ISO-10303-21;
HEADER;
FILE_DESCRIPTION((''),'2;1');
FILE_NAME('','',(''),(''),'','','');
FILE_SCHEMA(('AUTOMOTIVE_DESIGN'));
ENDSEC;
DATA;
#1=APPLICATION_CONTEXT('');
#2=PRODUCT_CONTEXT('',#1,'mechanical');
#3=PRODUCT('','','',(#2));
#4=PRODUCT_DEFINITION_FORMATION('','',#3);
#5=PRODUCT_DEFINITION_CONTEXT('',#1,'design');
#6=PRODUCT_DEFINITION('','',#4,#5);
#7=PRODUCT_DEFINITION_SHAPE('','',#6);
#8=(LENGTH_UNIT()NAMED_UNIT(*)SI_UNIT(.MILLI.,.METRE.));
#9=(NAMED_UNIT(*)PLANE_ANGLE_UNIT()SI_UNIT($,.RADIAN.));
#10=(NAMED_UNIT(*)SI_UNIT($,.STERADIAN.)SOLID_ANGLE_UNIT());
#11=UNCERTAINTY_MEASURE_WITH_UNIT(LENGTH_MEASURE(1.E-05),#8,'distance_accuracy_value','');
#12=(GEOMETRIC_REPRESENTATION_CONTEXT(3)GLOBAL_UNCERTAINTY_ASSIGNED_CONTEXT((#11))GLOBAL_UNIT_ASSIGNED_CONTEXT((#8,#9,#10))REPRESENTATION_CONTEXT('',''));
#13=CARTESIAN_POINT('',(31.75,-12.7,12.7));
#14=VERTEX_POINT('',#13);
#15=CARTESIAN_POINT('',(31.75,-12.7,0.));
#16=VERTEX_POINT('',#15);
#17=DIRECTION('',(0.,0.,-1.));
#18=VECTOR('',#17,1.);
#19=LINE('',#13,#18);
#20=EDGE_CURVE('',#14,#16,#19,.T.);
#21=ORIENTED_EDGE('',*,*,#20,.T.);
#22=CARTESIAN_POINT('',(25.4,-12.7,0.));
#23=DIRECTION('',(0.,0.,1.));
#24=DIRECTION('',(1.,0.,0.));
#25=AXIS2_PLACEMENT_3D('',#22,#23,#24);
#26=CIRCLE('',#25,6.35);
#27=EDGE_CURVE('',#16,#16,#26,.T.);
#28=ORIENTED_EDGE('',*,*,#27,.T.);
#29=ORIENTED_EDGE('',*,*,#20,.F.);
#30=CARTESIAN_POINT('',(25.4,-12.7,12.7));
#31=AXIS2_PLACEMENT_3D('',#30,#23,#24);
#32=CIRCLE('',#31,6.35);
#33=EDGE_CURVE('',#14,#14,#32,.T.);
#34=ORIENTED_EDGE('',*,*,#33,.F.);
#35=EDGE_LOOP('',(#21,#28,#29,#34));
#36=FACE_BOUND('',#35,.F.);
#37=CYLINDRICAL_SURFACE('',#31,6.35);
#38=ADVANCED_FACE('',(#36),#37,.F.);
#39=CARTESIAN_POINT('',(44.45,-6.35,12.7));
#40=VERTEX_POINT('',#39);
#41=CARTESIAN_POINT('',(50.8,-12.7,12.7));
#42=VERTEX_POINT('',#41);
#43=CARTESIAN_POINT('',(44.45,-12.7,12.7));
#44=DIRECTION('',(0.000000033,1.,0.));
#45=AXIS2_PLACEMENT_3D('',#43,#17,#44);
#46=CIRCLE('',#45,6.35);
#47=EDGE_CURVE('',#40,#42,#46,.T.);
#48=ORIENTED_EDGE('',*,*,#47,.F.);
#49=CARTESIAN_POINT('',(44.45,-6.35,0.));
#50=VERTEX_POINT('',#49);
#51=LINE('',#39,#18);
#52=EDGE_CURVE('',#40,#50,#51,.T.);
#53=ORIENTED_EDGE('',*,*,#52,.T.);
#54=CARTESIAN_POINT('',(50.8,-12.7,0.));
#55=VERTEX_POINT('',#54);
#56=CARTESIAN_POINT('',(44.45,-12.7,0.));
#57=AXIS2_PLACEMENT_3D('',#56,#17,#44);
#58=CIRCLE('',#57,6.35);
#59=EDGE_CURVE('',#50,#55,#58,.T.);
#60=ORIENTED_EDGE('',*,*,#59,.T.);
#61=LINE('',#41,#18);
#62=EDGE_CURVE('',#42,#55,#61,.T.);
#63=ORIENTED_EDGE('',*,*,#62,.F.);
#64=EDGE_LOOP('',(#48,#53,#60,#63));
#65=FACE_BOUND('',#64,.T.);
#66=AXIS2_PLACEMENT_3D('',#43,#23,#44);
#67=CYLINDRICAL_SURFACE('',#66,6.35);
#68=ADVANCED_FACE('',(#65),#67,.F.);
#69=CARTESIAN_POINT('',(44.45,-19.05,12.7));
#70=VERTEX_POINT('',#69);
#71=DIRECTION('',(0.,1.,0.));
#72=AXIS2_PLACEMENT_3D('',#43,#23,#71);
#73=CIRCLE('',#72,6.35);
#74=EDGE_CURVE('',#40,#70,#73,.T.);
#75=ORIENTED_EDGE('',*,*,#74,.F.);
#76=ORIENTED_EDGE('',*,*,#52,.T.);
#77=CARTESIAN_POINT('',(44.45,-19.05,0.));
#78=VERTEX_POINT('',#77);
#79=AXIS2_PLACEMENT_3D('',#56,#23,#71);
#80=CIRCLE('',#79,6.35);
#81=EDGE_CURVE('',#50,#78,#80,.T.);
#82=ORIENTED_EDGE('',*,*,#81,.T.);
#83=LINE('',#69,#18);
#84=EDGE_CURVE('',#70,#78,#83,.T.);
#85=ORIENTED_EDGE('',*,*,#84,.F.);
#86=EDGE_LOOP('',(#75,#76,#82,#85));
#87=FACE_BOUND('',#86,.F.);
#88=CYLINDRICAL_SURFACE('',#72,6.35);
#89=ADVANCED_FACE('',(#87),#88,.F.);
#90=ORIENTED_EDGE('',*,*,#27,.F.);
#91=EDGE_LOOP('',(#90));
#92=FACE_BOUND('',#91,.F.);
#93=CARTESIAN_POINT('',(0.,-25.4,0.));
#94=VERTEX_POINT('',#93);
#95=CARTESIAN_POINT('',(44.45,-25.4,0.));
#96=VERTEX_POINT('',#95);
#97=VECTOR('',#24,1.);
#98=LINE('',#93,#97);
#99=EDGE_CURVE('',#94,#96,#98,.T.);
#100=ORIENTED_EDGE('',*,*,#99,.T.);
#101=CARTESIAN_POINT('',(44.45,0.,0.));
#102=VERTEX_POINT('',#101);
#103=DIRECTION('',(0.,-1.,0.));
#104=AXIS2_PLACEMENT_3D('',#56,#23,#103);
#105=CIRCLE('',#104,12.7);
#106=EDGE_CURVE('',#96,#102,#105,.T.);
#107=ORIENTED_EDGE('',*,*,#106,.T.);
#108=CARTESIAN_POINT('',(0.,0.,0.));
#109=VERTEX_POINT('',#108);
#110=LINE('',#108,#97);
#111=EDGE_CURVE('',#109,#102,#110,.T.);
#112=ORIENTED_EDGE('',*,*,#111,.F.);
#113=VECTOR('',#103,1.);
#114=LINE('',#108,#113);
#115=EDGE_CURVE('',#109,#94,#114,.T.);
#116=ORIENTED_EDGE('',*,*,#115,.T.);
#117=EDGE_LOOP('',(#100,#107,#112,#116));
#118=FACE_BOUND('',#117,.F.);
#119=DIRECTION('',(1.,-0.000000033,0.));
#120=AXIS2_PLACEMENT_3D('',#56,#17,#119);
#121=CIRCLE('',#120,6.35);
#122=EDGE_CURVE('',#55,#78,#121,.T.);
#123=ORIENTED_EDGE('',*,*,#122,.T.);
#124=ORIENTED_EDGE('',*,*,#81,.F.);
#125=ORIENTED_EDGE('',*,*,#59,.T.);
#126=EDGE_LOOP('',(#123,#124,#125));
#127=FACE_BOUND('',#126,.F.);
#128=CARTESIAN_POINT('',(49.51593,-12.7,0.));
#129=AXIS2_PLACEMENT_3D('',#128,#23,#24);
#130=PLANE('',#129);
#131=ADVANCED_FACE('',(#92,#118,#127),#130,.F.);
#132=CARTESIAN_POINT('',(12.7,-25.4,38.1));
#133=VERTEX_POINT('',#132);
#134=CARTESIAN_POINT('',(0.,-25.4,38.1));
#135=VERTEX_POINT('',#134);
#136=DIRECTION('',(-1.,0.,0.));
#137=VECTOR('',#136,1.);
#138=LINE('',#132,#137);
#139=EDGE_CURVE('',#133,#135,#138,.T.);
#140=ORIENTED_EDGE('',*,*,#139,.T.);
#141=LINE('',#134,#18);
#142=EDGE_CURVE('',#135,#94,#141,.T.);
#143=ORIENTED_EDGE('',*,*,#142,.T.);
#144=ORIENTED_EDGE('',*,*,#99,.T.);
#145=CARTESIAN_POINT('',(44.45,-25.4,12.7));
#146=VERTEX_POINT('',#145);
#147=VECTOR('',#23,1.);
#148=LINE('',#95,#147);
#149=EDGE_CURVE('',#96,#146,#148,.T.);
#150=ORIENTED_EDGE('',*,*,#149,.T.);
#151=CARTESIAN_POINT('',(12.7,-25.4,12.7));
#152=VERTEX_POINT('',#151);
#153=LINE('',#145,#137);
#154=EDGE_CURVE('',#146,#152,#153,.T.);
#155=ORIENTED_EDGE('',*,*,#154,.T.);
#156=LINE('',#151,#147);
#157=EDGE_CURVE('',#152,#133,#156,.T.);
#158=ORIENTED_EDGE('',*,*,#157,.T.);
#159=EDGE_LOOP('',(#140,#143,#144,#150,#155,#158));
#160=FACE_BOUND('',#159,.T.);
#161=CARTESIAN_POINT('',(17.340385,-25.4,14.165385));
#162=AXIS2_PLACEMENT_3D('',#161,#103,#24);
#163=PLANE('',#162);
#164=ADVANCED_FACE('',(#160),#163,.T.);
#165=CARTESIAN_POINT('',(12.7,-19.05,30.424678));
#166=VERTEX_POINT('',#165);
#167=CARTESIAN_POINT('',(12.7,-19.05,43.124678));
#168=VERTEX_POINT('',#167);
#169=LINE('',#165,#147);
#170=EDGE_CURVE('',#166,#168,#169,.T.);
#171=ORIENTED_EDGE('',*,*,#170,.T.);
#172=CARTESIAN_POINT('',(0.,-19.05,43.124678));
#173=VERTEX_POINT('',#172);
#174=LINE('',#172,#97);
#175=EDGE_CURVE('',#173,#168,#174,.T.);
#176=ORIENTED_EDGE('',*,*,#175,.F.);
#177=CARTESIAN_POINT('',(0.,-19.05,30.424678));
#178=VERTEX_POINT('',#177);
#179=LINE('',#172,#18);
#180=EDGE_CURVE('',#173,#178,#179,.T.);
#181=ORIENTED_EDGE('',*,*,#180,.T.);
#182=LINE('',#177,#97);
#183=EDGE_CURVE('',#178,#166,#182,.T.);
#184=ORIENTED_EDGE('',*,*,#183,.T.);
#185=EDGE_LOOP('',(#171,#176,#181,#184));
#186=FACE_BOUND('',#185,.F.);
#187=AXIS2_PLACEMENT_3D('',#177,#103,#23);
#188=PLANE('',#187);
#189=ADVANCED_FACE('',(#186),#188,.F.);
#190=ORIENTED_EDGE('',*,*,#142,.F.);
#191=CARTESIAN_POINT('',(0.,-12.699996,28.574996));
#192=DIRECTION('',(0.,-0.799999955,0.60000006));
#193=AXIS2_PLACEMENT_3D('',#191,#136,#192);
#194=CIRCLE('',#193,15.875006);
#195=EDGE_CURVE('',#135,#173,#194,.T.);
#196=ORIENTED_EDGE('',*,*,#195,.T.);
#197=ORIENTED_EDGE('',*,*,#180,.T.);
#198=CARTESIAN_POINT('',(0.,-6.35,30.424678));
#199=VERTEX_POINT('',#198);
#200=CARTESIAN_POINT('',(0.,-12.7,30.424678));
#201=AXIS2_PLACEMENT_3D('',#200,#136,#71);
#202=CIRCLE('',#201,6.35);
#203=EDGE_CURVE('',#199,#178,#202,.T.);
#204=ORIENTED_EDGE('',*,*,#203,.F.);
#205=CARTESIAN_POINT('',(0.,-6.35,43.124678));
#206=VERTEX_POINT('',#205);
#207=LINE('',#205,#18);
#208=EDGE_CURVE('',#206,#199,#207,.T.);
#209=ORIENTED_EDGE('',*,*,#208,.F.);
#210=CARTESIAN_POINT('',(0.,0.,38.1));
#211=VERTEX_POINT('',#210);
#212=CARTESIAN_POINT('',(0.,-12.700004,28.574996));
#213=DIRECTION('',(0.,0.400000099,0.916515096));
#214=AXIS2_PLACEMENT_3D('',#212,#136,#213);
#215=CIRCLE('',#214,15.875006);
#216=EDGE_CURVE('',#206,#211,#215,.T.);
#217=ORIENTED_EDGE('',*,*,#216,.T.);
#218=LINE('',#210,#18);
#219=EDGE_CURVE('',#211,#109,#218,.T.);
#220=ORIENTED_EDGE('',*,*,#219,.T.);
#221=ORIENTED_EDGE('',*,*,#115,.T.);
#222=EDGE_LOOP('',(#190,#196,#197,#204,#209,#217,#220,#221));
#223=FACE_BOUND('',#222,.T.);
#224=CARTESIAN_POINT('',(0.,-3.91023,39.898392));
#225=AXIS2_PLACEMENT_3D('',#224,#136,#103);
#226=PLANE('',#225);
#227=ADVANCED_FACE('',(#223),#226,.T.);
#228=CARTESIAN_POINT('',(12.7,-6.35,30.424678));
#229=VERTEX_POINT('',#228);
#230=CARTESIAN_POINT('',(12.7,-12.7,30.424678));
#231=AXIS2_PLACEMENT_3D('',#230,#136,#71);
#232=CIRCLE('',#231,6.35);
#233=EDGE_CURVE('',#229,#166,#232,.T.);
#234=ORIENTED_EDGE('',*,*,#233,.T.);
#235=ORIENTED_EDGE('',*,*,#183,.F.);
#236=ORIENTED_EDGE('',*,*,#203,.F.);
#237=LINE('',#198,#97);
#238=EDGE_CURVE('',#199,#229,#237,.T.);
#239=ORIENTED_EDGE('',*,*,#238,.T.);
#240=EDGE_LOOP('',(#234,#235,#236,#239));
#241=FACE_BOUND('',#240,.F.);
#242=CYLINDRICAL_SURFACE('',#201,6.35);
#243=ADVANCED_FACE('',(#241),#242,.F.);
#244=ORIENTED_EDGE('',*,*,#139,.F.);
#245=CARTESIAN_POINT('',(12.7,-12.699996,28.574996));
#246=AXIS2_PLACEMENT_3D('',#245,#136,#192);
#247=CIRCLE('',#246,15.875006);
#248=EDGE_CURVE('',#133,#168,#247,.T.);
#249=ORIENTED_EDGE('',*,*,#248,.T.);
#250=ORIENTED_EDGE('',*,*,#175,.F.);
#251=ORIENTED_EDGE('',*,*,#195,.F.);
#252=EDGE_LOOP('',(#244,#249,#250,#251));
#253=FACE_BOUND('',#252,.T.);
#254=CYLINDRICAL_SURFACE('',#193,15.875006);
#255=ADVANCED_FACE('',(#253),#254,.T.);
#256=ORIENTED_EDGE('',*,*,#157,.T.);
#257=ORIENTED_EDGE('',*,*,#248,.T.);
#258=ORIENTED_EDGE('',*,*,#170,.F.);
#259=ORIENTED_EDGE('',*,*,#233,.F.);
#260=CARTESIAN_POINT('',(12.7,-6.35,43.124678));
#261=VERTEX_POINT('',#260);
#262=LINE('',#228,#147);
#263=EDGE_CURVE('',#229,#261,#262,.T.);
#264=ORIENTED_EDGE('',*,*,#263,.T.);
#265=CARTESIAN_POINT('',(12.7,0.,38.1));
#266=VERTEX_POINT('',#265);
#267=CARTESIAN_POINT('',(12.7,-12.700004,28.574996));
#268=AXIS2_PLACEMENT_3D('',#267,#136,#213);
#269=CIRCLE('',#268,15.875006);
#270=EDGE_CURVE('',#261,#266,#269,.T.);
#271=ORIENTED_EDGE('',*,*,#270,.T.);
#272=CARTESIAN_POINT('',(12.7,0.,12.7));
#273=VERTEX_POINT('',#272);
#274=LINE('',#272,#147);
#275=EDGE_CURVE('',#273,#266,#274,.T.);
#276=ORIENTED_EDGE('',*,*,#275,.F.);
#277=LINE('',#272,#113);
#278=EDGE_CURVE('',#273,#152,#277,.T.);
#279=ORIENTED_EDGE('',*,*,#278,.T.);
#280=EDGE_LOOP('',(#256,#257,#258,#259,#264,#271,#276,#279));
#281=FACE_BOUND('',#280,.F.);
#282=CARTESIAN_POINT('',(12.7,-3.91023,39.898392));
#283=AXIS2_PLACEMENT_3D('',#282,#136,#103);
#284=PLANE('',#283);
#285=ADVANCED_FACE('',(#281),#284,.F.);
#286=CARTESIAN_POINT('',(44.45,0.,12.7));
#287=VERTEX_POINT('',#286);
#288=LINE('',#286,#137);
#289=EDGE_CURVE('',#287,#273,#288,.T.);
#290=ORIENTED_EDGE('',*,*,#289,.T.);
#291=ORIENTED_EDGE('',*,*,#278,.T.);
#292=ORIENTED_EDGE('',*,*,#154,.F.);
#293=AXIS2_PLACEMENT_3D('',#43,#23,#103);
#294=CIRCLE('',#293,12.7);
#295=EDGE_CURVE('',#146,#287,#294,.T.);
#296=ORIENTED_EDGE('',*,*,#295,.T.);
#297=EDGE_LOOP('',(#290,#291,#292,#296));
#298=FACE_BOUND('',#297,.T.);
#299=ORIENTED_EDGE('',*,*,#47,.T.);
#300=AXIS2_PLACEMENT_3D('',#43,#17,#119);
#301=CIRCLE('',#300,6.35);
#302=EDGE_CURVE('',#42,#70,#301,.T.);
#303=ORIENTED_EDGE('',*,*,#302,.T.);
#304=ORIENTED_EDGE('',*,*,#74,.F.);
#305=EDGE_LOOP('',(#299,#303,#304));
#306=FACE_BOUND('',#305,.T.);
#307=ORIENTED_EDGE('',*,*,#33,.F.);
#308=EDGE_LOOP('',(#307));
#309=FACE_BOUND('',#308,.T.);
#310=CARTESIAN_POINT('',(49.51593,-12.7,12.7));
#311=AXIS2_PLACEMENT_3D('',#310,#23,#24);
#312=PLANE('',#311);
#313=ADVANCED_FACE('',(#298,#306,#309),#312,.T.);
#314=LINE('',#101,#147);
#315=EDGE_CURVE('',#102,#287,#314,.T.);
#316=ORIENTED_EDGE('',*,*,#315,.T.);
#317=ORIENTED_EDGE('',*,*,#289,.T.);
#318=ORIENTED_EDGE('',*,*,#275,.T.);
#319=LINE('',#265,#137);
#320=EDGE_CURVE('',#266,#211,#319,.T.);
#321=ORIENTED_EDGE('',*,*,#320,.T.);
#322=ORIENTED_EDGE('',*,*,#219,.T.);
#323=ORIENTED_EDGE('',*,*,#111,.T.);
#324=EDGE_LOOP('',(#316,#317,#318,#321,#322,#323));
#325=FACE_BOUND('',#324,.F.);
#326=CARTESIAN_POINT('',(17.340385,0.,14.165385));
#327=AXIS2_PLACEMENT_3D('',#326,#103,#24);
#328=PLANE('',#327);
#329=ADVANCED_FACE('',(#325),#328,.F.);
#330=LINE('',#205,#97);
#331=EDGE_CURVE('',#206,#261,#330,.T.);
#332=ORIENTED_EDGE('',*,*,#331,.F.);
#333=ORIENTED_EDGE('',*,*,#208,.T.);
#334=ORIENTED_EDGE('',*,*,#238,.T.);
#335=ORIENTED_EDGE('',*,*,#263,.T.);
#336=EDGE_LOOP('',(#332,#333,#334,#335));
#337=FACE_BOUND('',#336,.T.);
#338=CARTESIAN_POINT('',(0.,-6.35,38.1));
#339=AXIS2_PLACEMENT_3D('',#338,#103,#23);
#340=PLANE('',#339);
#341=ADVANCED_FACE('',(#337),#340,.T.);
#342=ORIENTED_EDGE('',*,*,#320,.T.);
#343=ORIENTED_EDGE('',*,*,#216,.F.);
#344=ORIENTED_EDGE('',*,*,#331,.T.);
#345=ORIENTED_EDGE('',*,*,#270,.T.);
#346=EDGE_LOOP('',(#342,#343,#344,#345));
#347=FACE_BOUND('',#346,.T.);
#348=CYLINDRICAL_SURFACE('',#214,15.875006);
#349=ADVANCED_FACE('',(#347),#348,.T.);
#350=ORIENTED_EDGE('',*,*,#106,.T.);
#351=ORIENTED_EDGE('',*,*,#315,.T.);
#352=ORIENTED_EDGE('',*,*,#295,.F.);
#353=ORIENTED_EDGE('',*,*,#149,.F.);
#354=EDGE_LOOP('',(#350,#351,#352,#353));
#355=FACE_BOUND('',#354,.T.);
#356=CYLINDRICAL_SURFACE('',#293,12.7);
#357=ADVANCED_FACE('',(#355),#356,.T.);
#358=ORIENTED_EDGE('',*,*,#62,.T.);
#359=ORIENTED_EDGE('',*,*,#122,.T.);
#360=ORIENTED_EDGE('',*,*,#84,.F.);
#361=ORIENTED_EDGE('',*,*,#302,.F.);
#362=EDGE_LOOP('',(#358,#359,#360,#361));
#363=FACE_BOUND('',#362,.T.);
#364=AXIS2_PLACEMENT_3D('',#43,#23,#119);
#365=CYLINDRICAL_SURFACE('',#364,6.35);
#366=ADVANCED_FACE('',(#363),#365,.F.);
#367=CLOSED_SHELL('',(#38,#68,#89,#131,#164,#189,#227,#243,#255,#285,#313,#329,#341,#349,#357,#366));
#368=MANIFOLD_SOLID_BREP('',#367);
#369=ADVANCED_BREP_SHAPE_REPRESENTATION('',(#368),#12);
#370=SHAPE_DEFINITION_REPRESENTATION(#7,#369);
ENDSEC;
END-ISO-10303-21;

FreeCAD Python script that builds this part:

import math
import FreeCAD as App
import Part
import Sketcher

V = App.Vector
Q = App.Units.Quantity


def add_polygon(sketch, points):
    """Adds a closed chain of lines whose ends are joined by coincident constraints."""
    first, n = sketch.GeometryCount, len(points)
    for a, b in zip(points, points[1:] + points[:1]):
        sketch.addGeometry(Part.LineSegment(App.Vector(*a, 0), App.Vector(*b, 0)), False)
    for i in range(n):
        sketch.addConstraint(Sketcher.Constraint("Coincident", first + i, 2, first + (i + 1) % n, 1))

doc = App.newDocument("Part")
body = doc.addObject("PartDesign::Body", "Body")

# Sketch on XZ plane
sketch1 = body.newObject("Sketcher::SketchObject", "Sketch")
sketch1.AttachmentSupport = (doc.getObject("XZ_Plane"), [""])
sketch1.MapMode = "FlatFace"
add_polygon(sketch1, [(0, 38), (0, 0), (44, 0), (44, 13), (13, 13), (13, 38)])  # lines 0-5
sketch1.addConstraint([
    Sketcher.Constraint("Vertical", 0),
    Sketcher.Constraint("Horizontal", 1),
    Sketcher.Constraint("Vertical", 2),
    Sketcher.Constraint("Horizontal", 3),
    Sketcher.Constraint("Vertical", 4),
    Sketcher.Constraint("Horizontal", 5),
    Sketcher.Constraint("Coincident", 0, 2, -1, 1),
    Sketcher.Constraint("Equal", 5, 2),
    Sketcher.Constraint("DistanceY", 4, 1, 4, 2, Q("1 in")),
    Sketcher.Constraint("DistanceX", 5, 2, 5, 1, Q("0.5 in")),
    Sketcher.Constraint("DistanceX", 1, 1, 1, 2, Q("1.75 in")),
])
pad1 = body.newObject("PartDesign::Pad", "Pad")
pad1.Profile = sketch1
pad1.Length = Q("1 in")

# Sketch on YZ plane
sketch2 = body.newObject("Sketcher::SketchObject", "Sketch001")
sketch2.AttachmentSupport = (doc.getObject("YZ_Plane"), [""])
sketch2.MapMode = "FlatFace"
sketch2.addGeometry([
    Part.LineSegment(V(-6, 38, 0), V(-6, 43, 0)),  # 0
    Part.ArcOfCircle(Part.Circle(V(-13, 29, 0), V(0, 0, 1), 16), math.radians(37), math.radians(66)),  # 1
    Part.LineSegment(V(0, 38, 0), V(-6, 38, 0)),  # 2
    Part.LineSegment(V(-6, 38, 0), V(-6, 30, 0)),  # 3
    Part.ArcOfCircle(Part.Circle(V(-13, 30, 0), V(0, 0, 1), 6), math.radians(180), math.radians(360)),  # 4
    Part.LineSegment(V(-19, 30, 0), V(-19, 38, 0)),  # 5
    Part.LineSegment(V(-19, 38, 0), V(-6, 38, 0)),  # 6
], False)
sketch2.addConstraint([
    Sketcher.Constraint("Coincident", 0, 2, 1, 2),
    Sketcher.Constraint("Coincident", 1, 1, 2, 1),
    Sketcher.Constraint("Coincident", 2, 2, 0, 1),
    Sketcher.Constraint("Tangent", 3, 2, 4, 2),
    Sketcher.Constraint("Tangent", 4, 1, 5, 1),
    Sketcher.Constraint("Coincident", 5, 2, 6, 1),
    Sketcher.Constraint("Coincident", 6, 2, 3, 1),
    Sketcher.Constraint("Vertical", 0),
    Sketcher.Constraint("Horizontal", 2),
    Sketcher.Constraint("Vertical", 3),
    Sketcher.Constraint("Vertical", 5),
    Sketcher.Constraint("Horizontal", 6),
    Sketcher.Constraint("Coincident", 6, 2, 2, 2),
    Sketcher.Constraint("PointOnObject", 1, 1, -2),
    Sketcher.Constraint("Radius", 4, Q("0.25 in")),
    Sketcher.Constraint("DistanceX", 2, 2, 2, 1, Q("0.25 in")),
    Sketcher.Constraint("DistanceX", 1, 3, -1, 1, Q("0.5000002 in")),
    Sketcher.Constraint("DistanceY", -1, 1, 1, 1, Q("1.5 in")),
    Sketcher.Constraint("DistanceY", 4, 3, 0, 2, Q("0.5 in")),
    Sketcher.Constraint("DistanceY", -1, 1, 1, 3, Q("1.1249998 in")),
])
pocket1 = body.newObject("PartDesign::Pocket", "Pocket")
pocket1.Profile = sketch2
pocket1.Length = Q("0.5 in")
pocket1.Reversed = True

# Sketch on YZ plane
sketch3 = body.newObject("Sketcher::SketchObject", "Sketch002")
sketch3.AttachmentSupport = (doc.getObject("YZ_Plane"), [""])
sketch3.MapMode = "FlatFace"
sketch3.addGeometry([
    Part.LineSegment(V(-6, 38, 0), V(-6, 43, 0)),  # 0
    Part.ArcOfCircle(Part.Circle(V(-13, 29, 0), V(0, 0, 1), 16), math.radians(37), math.radians(66)),  # 1
    Part.LineSegment(V(0, 38, 0), V(-6, 38, 0)),  # 2
    Part.LineSegment(V(-19, 38, 0), V(-25, 38, 0)),  # 3
    Part.ArcOfCircle(Part.Circle(V(-13, 29, 0), V(0, 0, 1), 16), math.radians(114), math.radians(143)),  # 4
    Part.LineSegment(V(-19, 43, 0), V(-19, 38, 0)),  # 5
], False)
sketch3.addConstraint([
    Sketcher.Constraint("Coincident", 0, 2, 1, 2),
    Sketcher.Constraint("Coincident", 1, 1, 2, 1),
    Sketcher.Constraint("Coincident", 2, 2, 0, 1),
    Sketcher.Constraint("Coincident", 3, 2, 4, 2),
    Sketcher.Constraint("Coincident", 4, 1, 5, 1),
    Sketcher.Constraint("Coincident", 5, 2, 3, 1),
    Sketcher.Constraint("Vertical", 0),
    Sketcher.Constraint("Horizontal", 2),
    Sketcher.Constraint("Horizontal", 3),
    Sketcher.Constraint("Vertical", 5),
    Sketcher.Constraint("Coincident", 4, 3, 1, 3),
    Sketcher.Constraint("Equal", 1, 4),
    Sketcher.Constraint("PointOnObject", 1, 1, -2),
    Sketcher.Constraint("Horizontal", 2, 2, 3, 2),
    Sketcher.Constraint("Horizontal", 0, 2, 4, 1),
    Sketcher.Constraint("DistanceX", 3, 2, -1, 1, Q("1 in")),
    Sketcher.Constraint("DistanceX", 2, 2, 2, 1, Q("0.25 in")),
    Sketcher.Constraint("DistanceY", -1, 1, 1, 1, Q("1.5 in")),
    Sketcher.Constraint("DistanceY", -1, 1, 1, 3, Q("1.1249998 in")),
])
pad2 = body.newObject("PartDesign::Pad", "Pad001")
pad2.Profile = sketch3
pad2.Length = Q("0.5 in")

# Sketch on XY plane
sketch4 = body.newObject("Sketcher::SketchObject", "Sketch003")
sketch4.AttachmentSupport = (doc.getObject("XY_Plane"), [""])
sketch4.MapMode = "FlatFace"
sketch4.AttachmentOffset = App.Placement(V(0, 0, 0.5 * 25.4), App.Rotation())
sketch4.addGeometry([
    Part.ArcOfCircle(Part.Circle(V(44, -13, 0), V(0, 0, 1), 6), math.radians(-90), math.radians(0)),
    Part.ArcOfCircle(Part.Circle(V(44, -13, 0), V(0, 0, 1), 6), math.radians(0), math.radians(90)),
    Part.ArcOfCircle(Part.Circle(V(44, -13, 0), V(0, 0, 1), 6), math.radians(90), math.radians(270)),
    Part.Circle(V(25, -13, 0), V(0, 0, 1), 6),
], False)
sketch4.addConstraint([
    Sketcher.Constraint("Tangent", 0, 2, 1, 1),
    Sketcher.Constraint("Tangent", 1, 2, 2, 1),
    Sketcher.Constraint("Tangent", 2, 2, 0, 1),
    Sketcher.Constraint("Equal", 2, 3),
    Sketcher.Constraint("Horizontal", 2, 3, 3, 3),
    Sketcher.Constraint("Horizontal", 3, 3, 0, 2),
    Sketcher.Constraint("Vertical", 2, 3, 1, 2),
    Sketcher.Constraint("Vertical", 1, 2, 2, 2),
    Sketcher.Constraint("Diameter", 3, Q("0.5 in")),
    Sketcher.Constraint("DistanceX", -1, 1, 3, 3, Q("1 in")),
    Sketcher.Constraint("DistanceX", -1, 1, 0, 2, Q("2 in")),
    Sketcher.Constraint("DistanceY", 0, 3, -1, 1, Q("0.5 in")),
])
pocket2 = body.newObject("PartDesign::Pocket", "Pocket001")
pocket2.Profile = sketch4
pocket2.Length = Q("1 in")

# Sketch on XY plane
sketch5 = body.newObject("Sketcher::SketchObject", "Sketch004")
sketch5.AttachmentSupport = (doc.getObject("XY_Plane"), [""])
sketch5.MapMode = "FlatFace"
sketch5.AttachmentOffset = App.Placement(V(0, 0, 0.5 * 25.4), App.Rotation())
sketch5.addGeometry([
    Part.LineSegment(V(44, -19, 0), V(44, -25, 0)),  # 0
    Part.ArcOfCircle(Part.Circle(V(44, -13, 0), V(0, 0, 1), 13), math.radians(-90), math.radians(90)),  # 1
    Part.LineSegment(V(44, 0, 0), V(44, -6, 0)),  # 2
    Part.ArcOfCircle(Part.Circle(V(44, -13, 0), V(0, 0, 1), 6), math.radians(0), math.radians(90)),  # 3
    Part.ArcOfCircle(Part.Circle(V(44, -13, 0), V(0, 0, 1), 6), math.radians(-90), math.radians(0)),  # 4
], False)
sketch5.addConstraint([
    Sketcher.Constraint("Coincident", 0, 2, 1, 1),
    Sketcher.Constraint("Coincident", 1, 2, 2, 1),
    Sketcher.Constraint("Coincident", 2, 2, 3, 2),
    Sketcher.Constraint("Tangent", 3, 1, 4, 2),
    Sketcher.Constraint("Coincident", 4, 1, 0, 1),
    Sketcher.Constraint("Vertical", 0),
    Sketcher.Constraint("Vertical", 2),
    Sketcher.Constraint("Coincident", 3, 3, 1, 3),
    Sketcher.Constraint("Equal", 3, 4),
    Sketcher.Constraint("PointOnObject", 1, 2, -1),
    Sketcher.Constraint("Horizontal", 4, 3, 3, 1),
    Sketcher.Constraint("Vertical", 4, 3, 0, 2),
    Sketcher.Constraint("Vertical", 0, 2, 1, 2),
    Sketcher.Constraint("Radius", 1, Q("0.5 in")),
    Sketcher.Constraint("Radius", 3, Q("0.25 in")),
    Sketcher.Constraint("DistanceX", -1, 1, 3, 1, Q("2 in")),
])
pad3 = body.newObject("PartDesign::Pad", "Pad002")
pad3.Profile = sketch5
pad3.Length = Q("0.5 in")
pad3.Reversed = True

doc.recompute()
